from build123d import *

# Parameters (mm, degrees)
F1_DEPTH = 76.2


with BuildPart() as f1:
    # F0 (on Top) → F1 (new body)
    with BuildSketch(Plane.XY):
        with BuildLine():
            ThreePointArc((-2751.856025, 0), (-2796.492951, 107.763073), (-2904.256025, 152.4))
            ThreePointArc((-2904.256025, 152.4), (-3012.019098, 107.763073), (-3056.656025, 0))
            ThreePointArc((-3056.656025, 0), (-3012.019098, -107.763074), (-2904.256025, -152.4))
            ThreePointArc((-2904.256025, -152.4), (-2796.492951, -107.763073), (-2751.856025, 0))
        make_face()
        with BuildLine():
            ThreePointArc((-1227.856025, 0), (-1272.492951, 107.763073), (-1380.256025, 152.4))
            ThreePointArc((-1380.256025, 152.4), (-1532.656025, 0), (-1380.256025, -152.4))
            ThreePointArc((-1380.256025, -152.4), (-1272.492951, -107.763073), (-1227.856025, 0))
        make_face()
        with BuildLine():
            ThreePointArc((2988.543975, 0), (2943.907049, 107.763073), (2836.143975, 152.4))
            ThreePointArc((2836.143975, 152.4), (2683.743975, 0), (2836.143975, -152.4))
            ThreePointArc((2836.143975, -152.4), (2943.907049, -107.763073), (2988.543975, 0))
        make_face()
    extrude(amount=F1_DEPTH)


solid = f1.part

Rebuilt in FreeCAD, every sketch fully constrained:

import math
import FreeCAD as App
import Part
import Sketcher
Q = App.Units.Quantity

doc = App.newDocument("Part")
body = doc.addObject("PartDesign::Body", "Body")
body.AllowCompound = True

# Sketch on XY plane
sketch1 = doc.addObject("Sketcher::SketchObject", "Sketch")
body.addObject(sketch1)
sketch1.AttachmentSupport = (doc.XY_Plane, [""])
sketch1.MapMode = "FlatFace"
sketch1.addGeometry([
    Part.ArcOfCircle(Part.Circle(App.Vector(-2904.256025, 0, 0), App.Vector(0, 0, 1), 152.4), math.radians(0), math.radians(90)),  # 0
    Part.ArcOfCircle(Part.Circle(App.Vector(-2904.256023, -0.000002, 0), App.Vector(0, 0, 1), 152.400002), math.radians(90.000001), math.radians(179.999999)),  # 1
    Part.ArcOfCircle(Part.Circle(App.Vector(-2904.256025, 0, 0), App.Vector(0, 0, 1), 152.4), math.radians(180), math.radians(270)),  # 2
    Part.ArcOfCircle(Part.Circle(App.Vector(-2904.256025, 0, 0), App.Vector(0, 0, 1), 152.4), math.radians(-90), math.radians(0)),  # 3
    Part.ArcOfCircle(Part.Circle(App.Vector(-1380.256025, 0, 0), App.Vector(0, 0, 1), 152.4), math.radians(0), math.radians(90)),  # 4
    Part.ArcOfCircle(Part.Circle(App.Vector(-1380.256025, 0, 0), App.Vector(0, 0, 1), 152.4), math.radians(90), math.radians(270)),  # 5
    Part.ArcOfCircle(Part.Circle(App.Vector(-1380.256025, 0, 0), App.Vector(0, 0, 1), 152.4), math.radians(-90), math.radians(0)),  # 6
    Part.ArcOfCircle(Part.Circle(App.Vector(2836.143975, 0, 0), App.Vector(0, 0, 1), 152.4), math.radians(0), math.radians(90)),  # 7
    Part.ArcOfCircle(Part.Circle(App.Vector(2836.143975, 0, 0), App.Vector(0, 0, 1), 152.4), math.radians(90), math.radians(270)),  # 8
    Part.ArcOfCircle(Part.Circle(App.Vector(2836.143975, 0, 0), App.Vector(0, 0, 1), 152.4), math.radians(-90), math.radians(0)),  # 9
], False)
sketch1.addConstraint([
    Sketcher.Constraint("Tangent", 0, 2, 1, 1),
    Sketcher.Constraint("Tangent", 1, 2, 2, 1),
    Sketcher.Constraint("Tangent", 2, 2, 3, 1),
    Sketcher.Constraint("Tangent", 3, 2, 0, 1),
    Sketcher.Constraint("Tangent", 4, 2, 5, 1),
    Sketcher.Constraint("Tangent", 5, 2, 6, 1),
    Sketcher.Constraint("Tangent", 6, 2, 4, 1),
    Sketcher.Constraint("Tangent", 7, 2, 8, 1),
    Sketcher.Constraint("Tangent", 8, 2, 9, 1),
    Sketcher.Constraint("Tangent", 9, 2, 7, 1),
    Sketcher.Constraint("Equal", 0, 1),
    Sketcher.Constraint("Equal", 3, 4),
    Sketcher.Constraint("Equal", 6, 7),
    Sketcher.Constraint("Symmetric", 0, 2, 2, 2, -1),
    Sketcher.Constraint("Symmetric", 4, 2, 5, 2, -1),
    Sketcher.Constraint("Symmetric", 7, 2, 8, 2, -1),
    Sketcher.Constraint("PointOnObject", 1, 2, -1),
    Sketcher.Constraint("PointOnObject", 3, 2, -1),
    Sketcher.Constraint("PointOnObject", 6, 2, -1),
    Sketcher.Constraint("PointOnObject", 9, 2, -1),
    Sketcher.Constraint("Vertical", 3, 3, 0, 2),
    Sketcher.Constraint("Vertical", 6, 3, 4, 2),
    Sketcher.Constraint("Vertical", 9, 3, 7, 2),
    Sketcher.Constraint("Radius", 0, Q("6 in")),
    Sketcher.Constraint("DistanceX", 1, 3, 4, 3, Q("59.9999999 in")),
    Sketcher.Constraint("DistanceX", 4, 3, 7, 3, Q("166 in")),
    Sketcher.Constraint("DistanceX", 0, 3, -1, 1, 2904.256025),
])
pad1 = doc.addObject("PartDesign::Pad", "Pad")
body.addObject(pad1)
pad1.Profile = sketch1
pad1.Length = Q("3 in")

doc.recompute()
